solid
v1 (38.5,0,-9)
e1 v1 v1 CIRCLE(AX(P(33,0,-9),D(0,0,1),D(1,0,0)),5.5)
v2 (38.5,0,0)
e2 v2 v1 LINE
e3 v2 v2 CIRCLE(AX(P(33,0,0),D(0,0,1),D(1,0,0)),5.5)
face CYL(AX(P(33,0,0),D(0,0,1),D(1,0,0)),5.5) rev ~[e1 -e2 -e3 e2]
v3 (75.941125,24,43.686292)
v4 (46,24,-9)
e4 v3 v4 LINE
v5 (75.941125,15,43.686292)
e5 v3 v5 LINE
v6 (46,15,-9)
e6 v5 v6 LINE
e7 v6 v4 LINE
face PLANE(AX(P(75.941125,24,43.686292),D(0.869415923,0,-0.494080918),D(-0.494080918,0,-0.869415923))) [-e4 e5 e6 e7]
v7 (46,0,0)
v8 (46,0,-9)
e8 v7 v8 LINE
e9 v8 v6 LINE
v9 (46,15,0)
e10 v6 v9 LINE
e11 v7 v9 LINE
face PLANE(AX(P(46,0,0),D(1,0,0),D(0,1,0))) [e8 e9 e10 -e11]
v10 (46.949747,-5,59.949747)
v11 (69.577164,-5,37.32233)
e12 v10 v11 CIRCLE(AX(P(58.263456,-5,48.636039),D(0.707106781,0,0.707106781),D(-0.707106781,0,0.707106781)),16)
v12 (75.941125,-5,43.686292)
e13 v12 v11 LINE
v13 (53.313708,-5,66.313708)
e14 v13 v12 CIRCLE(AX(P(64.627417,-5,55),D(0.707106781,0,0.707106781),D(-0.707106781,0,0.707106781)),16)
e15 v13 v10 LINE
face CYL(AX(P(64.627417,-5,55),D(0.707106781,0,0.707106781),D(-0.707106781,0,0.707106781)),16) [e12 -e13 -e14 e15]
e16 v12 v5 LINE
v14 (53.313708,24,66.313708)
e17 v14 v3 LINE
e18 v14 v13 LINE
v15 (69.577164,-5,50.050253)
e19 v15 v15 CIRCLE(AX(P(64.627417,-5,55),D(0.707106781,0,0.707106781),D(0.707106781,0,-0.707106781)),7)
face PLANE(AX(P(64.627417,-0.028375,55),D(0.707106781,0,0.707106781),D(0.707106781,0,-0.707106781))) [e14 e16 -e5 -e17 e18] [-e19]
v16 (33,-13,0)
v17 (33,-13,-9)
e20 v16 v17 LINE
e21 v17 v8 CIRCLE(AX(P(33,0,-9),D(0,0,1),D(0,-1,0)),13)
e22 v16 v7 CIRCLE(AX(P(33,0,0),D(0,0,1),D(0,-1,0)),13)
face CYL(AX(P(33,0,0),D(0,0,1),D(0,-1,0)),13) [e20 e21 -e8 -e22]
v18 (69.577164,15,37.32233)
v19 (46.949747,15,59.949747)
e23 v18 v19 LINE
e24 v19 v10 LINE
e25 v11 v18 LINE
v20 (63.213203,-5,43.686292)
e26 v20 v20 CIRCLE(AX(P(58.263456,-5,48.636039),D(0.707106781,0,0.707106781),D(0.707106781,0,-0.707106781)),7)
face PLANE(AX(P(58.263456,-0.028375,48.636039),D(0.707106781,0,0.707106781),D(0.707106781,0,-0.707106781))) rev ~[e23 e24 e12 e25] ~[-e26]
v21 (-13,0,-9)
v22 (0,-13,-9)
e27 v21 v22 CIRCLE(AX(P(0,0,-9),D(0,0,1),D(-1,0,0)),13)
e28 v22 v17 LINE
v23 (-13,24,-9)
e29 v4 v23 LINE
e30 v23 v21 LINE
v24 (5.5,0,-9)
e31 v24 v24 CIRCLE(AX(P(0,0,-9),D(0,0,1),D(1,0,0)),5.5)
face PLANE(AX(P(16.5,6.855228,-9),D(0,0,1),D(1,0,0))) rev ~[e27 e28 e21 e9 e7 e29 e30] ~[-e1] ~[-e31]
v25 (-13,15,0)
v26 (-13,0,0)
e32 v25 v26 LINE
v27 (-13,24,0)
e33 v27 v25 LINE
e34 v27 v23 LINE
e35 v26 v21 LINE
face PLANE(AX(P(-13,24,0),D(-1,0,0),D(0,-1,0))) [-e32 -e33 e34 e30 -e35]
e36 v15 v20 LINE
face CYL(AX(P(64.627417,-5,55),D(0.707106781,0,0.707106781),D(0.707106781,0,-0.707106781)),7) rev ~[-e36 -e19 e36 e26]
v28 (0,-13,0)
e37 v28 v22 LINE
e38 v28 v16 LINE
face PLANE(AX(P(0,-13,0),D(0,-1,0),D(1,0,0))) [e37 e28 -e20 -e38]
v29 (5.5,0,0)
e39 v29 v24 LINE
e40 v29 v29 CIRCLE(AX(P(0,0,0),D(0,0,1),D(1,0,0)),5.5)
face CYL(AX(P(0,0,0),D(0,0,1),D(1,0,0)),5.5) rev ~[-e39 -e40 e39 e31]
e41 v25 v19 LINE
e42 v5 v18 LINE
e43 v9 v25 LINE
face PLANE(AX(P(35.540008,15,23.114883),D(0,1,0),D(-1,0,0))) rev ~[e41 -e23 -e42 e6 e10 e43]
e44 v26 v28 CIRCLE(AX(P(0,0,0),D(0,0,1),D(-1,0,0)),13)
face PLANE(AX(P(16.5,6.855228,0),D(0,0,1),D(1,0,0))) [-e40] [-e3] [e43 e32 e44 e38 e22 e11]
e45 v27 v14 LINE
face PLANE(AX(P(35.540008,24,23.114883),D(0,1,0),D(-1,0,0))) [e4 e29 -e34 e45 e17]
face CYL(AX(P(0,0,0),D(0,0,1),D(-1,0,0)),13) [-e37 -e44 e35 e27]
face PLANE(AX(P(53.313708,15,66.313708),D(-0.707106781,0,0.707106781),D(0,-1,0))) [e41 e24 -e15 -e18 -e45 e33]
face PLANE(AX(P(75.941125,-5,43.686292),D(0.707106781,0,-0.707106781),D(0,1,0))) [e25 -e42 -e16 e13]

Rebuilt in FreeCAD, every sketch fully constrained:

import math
import FreeCAD as App
import Part
import Sketcher

V = App.Vector
Q = App.Units.Quantity

doc = App.newDocument("Part")
body = doc.addObject("PartDesign::Body", "Body")

# Sketch on XY plane
sketch1 = body.newObject("Sketcher::SketchObject", "Sketch")
sketch1.AttachmentSupport = (doc.getObject("XY_Plane"), [""])
sketch1.MapMode = "FlatFace"
sketch1.addGeometry(Part.LineSegment(V(46, 24, 0), V(-13, 24, 0)), False)
sketch1.addGeometry(Part.LineSegment(V(-13, 24, 0), V(-13, 0, 0)), False)
sketch1.addGeometry(Part.ArcOfCircle(Part.Circle(V(0, 0, 0), V(0, 0, 1), 13), math.radians(180), math.radians(270)), False)
sketch1.addGeometry(Part.LineSegment(V(0, -13, 0), V(33, -13, 0)), False)
sketch1.addGeometry(Part.ArcOfCircle(Part.Circle(V(33, 0, 0), V(0, 0, 1), 13), math.radians(-90), math.radians(0)), False)
sketch1.addGeometry(Part.LineSegment(V(46, 0, 0), V(46, 24, 0)), False)
sketch1.addGeometry(Part.Circle(V(0, 0, 0), V(0, 0, 1), 5.5), False)
sketch1.addGeometry(Part.Circle(V(33, 0, 0), V(0, 0, 1), 5.5), False)
sketch1.addConstraint(Sketcher.Constraint("Coincident", 0, 2, 1, 1))
sketch1.addConstraint(Sketcher.Constraint("Tangent", 1, 2, 2, 1))
sketch1.addConstraint(Sketcher.Constraint("Tangent", 2, 2, 3, 1))
sketch1.addConstraint(Sketcher.Constraint("Tangent", 3, 2, 4, 1))
sketch1.addConstraint(Sketcher.Constraint("Tangent", 4, 2, 5, 1))
sketch1.addConstraint(Sketcher.Constraint("Coincident", 5, 2, 0, 1))
sketch1.addConstraint(Sketcher.Constraint("Horizontal", 0))
sketch1.addConstraint(Sketcher.Constraint("Vertical", 1))
sketch1.addConstraint(Sketcher.Constraint("Horizontal", 3))
sketch1.addConstraint(Sketcher.Constraint("Vertical", 5))
sketch1.addConstraint(Sketcher.Constraint("Coincident", 2, 3, -1, 1))
sketch1.addConstraint(Sketcher.Constraint("Coincident", 6, 3, -1, 1))
sketch1.addConstraint(Sketcher.Constraint("Coincident", 7, 3, 4, 3))
sketch1.addConstraint(Sketcher.Constraint("Equal", 2, 4))
sketch1.addConstraint(Sketcher.Constraint("Equal", 6, 7))
sketch1.addConstraint(Sketcher.Constraint("Diameter", 6, 11.0))
sketch1.addConstraint(Sketcher.Constraint("Radius", 2, 13.0))
sketch1.addConstraint(Sketcher.Constraint("DistanceX", 0, 2, 0, 1, 59.0))
sketch1.addConstraint(Sketcher.Constraint("DistanceY", 1, 2, 1, 1, 24.0))
pad1 = body.newObject("PartDesign::Pad", "Pad")
pad1.Profile = sketch1
pad1.Length = 9
pad1.Reversed = True

# Sketch on XZ plane
sketch2 = body.newObject("Sketcher::SketchObject", "Sketch001")
sketch2.AttachmentSupport = (doc.getObject("XZ_Plane"), [""])
sketch2.MapMode = "FlatFace"
sketch2.AttachmentOffset = App.Placement(V(0, 0, -24), App.Rotation())
sketch2.addGeometry(Part.LineSegment(V(75.941125, 43.686292, 0), V(46, -9, 0)), False)
sketch2.addGeometry(Part.LineSegment(V(46, -9, 0), V(46, 0, 0)), False)
sketch2.addGeometry(Part.LineSegment(V(46, 0, 0), V(-13, 0, 0)), False)
sketch2.addGeometry(Part.LineSegment(V(-13, 0, 0), V(53.313708, 66.313708, 0)), False)
sketch2.addGeometry(Part.LineSegment(V(53.313708, 66.313708, 0), V(75.941125, 43.686292, 0)), False)
sketch2.addConstraint(Sketcher.Constraint("Coincident", 0, 2, 1, 1))
sketch2.addConstraint(Sketcher.Constraint("Coincident", 1, 2, 2, 1))
sketch2.addConstraint(Sketcher.Constraint("Coincident", 2, 2, 3, 1))
sketch2.addConstraint(Sketcher.Constraint("Coincident", 3, 2, 4, 1))
sketch2.addConstraint(Sketcher.Constraint("Coincident", 4, 2, 0, 1))
sketch2.addConstraint(Sketcher.Constraint("Vertical", 1))
sketch2.addConstraint(Sketcher.Constraint("Horizontal", 2))
sketch2.addConstraint(Sketcher.Constraint("PointOnObject", 1, 2, -1))
sketch2.addConstraint(Sketcher.Constraint("Perpendicular", 3, 4))
sketch2.addConstraint(Sketcher.Constraint("DistanceX", 2, 2, 2, 1, 59.0))
sketch2.addConstraint(Sketcher.Constraint("DistanceY", 1, 1, 1, 2, 9.0))
sketch2.addConstraint(Sketcher.Constraint("Angle", 3, Q("45 deg")))
sketch2.addConstraint(Sketcher.Constraint("Distance", 4, 32.0))
sketch2.addConstraint(Sketcher.Constraint("DistanceX", -1, 1, 0, 2, 46.0))
sketch2.addConstraint(Sketcher.Constraint("Distance", 0, 60.59964))
pad2 = body.newObject("PartDesign::Pad", "Pad001")
pad2.Profile = sketch2
pad2.Length = 9

# Sketch on an angled plane
sketch3 = body.newObject("Sketcher::SketchObject", "Sketch002")
sketch3.Placement = App.Placement(V(59.813708, 0, 59.813708), App.Rotation(V(0.707106781, 0, -0.707106781), V(0, 0.999999999, 0), V(0.707106781, 0, 0.707106781), "ZXY"))
sketch3.addGeometry(Part.LineSegment(V(22.807612, -5, 0), V(22.807612, 15, 0)), False)
sketch3.addGeometry(Part.LineSegment(V(22.807612, 15, 0), V(-9.192388, 15, 0)), False)
sketch3.addGeometry(Part.LineSegment(V(-9.192388, 15, 0), V(-9.192388, -5, 0)), False)
sketch3.addGeometry(Part.ArcOfCircle(Part.Circle(V(6.807612, -5, 0), V(0, 0, 1), 16), math.radians(180), math.radians(360)), False)
sketch3.addGeometry(Part.Circle(V(6.807612, -5, 0), V(0, 0, 1), 7), False)
sketch3.addConstraint(Sketcher.Constraint("Coincident", 0, 2, 1, 1))
sketch3.addConstraint(Sketcher.Constraint("Coincident", 1, 2, 2, 1))
sketch3.addConstraint(Sketcher.Constraint("Tangent", 2, 2, 3, 1))
sketch3.addConstraint(Sketcher.Constraint("Tangent", 3, 2, 0, 1))
sketch3.addConstraint(Sketcher.Constraint("Vertical", 0))
sketch3.addConstraint(Sketcher.Constraint("Horizontal", 1))
sketch3.addConstraint(Sketcher.Constraint("Vertical", 2))
sketch3.addConstraint(Sketcher.Constraint("Coincident", 4, 3, 3, 3))
sketch3.addConstraint(Sketcher.Constraint("Diameter", 4, 14.0))
sketch3.addConstraint(Sketcher.Constraint("Radius", 3, 16.0))
sketch3.addConstraint(Sketcher.Constraint("DistanceY", 0, 1, 0, 2, 20.0))
sketch3.addConstraint(Sketcher.Constraint("DistanceY", 3, 3, -1, 1, 5.0))
sketch3.addConstraint(Sketcher.Constraint("DistanceX", -1, 1, 3, 3, 6.807612))
pad3 = body.newObject("PartDesign::Pad", "Pad002")
pad3.Profile = sketch3
pad3.Length = 9
pad3.Reversed = True

doc.recompute()
